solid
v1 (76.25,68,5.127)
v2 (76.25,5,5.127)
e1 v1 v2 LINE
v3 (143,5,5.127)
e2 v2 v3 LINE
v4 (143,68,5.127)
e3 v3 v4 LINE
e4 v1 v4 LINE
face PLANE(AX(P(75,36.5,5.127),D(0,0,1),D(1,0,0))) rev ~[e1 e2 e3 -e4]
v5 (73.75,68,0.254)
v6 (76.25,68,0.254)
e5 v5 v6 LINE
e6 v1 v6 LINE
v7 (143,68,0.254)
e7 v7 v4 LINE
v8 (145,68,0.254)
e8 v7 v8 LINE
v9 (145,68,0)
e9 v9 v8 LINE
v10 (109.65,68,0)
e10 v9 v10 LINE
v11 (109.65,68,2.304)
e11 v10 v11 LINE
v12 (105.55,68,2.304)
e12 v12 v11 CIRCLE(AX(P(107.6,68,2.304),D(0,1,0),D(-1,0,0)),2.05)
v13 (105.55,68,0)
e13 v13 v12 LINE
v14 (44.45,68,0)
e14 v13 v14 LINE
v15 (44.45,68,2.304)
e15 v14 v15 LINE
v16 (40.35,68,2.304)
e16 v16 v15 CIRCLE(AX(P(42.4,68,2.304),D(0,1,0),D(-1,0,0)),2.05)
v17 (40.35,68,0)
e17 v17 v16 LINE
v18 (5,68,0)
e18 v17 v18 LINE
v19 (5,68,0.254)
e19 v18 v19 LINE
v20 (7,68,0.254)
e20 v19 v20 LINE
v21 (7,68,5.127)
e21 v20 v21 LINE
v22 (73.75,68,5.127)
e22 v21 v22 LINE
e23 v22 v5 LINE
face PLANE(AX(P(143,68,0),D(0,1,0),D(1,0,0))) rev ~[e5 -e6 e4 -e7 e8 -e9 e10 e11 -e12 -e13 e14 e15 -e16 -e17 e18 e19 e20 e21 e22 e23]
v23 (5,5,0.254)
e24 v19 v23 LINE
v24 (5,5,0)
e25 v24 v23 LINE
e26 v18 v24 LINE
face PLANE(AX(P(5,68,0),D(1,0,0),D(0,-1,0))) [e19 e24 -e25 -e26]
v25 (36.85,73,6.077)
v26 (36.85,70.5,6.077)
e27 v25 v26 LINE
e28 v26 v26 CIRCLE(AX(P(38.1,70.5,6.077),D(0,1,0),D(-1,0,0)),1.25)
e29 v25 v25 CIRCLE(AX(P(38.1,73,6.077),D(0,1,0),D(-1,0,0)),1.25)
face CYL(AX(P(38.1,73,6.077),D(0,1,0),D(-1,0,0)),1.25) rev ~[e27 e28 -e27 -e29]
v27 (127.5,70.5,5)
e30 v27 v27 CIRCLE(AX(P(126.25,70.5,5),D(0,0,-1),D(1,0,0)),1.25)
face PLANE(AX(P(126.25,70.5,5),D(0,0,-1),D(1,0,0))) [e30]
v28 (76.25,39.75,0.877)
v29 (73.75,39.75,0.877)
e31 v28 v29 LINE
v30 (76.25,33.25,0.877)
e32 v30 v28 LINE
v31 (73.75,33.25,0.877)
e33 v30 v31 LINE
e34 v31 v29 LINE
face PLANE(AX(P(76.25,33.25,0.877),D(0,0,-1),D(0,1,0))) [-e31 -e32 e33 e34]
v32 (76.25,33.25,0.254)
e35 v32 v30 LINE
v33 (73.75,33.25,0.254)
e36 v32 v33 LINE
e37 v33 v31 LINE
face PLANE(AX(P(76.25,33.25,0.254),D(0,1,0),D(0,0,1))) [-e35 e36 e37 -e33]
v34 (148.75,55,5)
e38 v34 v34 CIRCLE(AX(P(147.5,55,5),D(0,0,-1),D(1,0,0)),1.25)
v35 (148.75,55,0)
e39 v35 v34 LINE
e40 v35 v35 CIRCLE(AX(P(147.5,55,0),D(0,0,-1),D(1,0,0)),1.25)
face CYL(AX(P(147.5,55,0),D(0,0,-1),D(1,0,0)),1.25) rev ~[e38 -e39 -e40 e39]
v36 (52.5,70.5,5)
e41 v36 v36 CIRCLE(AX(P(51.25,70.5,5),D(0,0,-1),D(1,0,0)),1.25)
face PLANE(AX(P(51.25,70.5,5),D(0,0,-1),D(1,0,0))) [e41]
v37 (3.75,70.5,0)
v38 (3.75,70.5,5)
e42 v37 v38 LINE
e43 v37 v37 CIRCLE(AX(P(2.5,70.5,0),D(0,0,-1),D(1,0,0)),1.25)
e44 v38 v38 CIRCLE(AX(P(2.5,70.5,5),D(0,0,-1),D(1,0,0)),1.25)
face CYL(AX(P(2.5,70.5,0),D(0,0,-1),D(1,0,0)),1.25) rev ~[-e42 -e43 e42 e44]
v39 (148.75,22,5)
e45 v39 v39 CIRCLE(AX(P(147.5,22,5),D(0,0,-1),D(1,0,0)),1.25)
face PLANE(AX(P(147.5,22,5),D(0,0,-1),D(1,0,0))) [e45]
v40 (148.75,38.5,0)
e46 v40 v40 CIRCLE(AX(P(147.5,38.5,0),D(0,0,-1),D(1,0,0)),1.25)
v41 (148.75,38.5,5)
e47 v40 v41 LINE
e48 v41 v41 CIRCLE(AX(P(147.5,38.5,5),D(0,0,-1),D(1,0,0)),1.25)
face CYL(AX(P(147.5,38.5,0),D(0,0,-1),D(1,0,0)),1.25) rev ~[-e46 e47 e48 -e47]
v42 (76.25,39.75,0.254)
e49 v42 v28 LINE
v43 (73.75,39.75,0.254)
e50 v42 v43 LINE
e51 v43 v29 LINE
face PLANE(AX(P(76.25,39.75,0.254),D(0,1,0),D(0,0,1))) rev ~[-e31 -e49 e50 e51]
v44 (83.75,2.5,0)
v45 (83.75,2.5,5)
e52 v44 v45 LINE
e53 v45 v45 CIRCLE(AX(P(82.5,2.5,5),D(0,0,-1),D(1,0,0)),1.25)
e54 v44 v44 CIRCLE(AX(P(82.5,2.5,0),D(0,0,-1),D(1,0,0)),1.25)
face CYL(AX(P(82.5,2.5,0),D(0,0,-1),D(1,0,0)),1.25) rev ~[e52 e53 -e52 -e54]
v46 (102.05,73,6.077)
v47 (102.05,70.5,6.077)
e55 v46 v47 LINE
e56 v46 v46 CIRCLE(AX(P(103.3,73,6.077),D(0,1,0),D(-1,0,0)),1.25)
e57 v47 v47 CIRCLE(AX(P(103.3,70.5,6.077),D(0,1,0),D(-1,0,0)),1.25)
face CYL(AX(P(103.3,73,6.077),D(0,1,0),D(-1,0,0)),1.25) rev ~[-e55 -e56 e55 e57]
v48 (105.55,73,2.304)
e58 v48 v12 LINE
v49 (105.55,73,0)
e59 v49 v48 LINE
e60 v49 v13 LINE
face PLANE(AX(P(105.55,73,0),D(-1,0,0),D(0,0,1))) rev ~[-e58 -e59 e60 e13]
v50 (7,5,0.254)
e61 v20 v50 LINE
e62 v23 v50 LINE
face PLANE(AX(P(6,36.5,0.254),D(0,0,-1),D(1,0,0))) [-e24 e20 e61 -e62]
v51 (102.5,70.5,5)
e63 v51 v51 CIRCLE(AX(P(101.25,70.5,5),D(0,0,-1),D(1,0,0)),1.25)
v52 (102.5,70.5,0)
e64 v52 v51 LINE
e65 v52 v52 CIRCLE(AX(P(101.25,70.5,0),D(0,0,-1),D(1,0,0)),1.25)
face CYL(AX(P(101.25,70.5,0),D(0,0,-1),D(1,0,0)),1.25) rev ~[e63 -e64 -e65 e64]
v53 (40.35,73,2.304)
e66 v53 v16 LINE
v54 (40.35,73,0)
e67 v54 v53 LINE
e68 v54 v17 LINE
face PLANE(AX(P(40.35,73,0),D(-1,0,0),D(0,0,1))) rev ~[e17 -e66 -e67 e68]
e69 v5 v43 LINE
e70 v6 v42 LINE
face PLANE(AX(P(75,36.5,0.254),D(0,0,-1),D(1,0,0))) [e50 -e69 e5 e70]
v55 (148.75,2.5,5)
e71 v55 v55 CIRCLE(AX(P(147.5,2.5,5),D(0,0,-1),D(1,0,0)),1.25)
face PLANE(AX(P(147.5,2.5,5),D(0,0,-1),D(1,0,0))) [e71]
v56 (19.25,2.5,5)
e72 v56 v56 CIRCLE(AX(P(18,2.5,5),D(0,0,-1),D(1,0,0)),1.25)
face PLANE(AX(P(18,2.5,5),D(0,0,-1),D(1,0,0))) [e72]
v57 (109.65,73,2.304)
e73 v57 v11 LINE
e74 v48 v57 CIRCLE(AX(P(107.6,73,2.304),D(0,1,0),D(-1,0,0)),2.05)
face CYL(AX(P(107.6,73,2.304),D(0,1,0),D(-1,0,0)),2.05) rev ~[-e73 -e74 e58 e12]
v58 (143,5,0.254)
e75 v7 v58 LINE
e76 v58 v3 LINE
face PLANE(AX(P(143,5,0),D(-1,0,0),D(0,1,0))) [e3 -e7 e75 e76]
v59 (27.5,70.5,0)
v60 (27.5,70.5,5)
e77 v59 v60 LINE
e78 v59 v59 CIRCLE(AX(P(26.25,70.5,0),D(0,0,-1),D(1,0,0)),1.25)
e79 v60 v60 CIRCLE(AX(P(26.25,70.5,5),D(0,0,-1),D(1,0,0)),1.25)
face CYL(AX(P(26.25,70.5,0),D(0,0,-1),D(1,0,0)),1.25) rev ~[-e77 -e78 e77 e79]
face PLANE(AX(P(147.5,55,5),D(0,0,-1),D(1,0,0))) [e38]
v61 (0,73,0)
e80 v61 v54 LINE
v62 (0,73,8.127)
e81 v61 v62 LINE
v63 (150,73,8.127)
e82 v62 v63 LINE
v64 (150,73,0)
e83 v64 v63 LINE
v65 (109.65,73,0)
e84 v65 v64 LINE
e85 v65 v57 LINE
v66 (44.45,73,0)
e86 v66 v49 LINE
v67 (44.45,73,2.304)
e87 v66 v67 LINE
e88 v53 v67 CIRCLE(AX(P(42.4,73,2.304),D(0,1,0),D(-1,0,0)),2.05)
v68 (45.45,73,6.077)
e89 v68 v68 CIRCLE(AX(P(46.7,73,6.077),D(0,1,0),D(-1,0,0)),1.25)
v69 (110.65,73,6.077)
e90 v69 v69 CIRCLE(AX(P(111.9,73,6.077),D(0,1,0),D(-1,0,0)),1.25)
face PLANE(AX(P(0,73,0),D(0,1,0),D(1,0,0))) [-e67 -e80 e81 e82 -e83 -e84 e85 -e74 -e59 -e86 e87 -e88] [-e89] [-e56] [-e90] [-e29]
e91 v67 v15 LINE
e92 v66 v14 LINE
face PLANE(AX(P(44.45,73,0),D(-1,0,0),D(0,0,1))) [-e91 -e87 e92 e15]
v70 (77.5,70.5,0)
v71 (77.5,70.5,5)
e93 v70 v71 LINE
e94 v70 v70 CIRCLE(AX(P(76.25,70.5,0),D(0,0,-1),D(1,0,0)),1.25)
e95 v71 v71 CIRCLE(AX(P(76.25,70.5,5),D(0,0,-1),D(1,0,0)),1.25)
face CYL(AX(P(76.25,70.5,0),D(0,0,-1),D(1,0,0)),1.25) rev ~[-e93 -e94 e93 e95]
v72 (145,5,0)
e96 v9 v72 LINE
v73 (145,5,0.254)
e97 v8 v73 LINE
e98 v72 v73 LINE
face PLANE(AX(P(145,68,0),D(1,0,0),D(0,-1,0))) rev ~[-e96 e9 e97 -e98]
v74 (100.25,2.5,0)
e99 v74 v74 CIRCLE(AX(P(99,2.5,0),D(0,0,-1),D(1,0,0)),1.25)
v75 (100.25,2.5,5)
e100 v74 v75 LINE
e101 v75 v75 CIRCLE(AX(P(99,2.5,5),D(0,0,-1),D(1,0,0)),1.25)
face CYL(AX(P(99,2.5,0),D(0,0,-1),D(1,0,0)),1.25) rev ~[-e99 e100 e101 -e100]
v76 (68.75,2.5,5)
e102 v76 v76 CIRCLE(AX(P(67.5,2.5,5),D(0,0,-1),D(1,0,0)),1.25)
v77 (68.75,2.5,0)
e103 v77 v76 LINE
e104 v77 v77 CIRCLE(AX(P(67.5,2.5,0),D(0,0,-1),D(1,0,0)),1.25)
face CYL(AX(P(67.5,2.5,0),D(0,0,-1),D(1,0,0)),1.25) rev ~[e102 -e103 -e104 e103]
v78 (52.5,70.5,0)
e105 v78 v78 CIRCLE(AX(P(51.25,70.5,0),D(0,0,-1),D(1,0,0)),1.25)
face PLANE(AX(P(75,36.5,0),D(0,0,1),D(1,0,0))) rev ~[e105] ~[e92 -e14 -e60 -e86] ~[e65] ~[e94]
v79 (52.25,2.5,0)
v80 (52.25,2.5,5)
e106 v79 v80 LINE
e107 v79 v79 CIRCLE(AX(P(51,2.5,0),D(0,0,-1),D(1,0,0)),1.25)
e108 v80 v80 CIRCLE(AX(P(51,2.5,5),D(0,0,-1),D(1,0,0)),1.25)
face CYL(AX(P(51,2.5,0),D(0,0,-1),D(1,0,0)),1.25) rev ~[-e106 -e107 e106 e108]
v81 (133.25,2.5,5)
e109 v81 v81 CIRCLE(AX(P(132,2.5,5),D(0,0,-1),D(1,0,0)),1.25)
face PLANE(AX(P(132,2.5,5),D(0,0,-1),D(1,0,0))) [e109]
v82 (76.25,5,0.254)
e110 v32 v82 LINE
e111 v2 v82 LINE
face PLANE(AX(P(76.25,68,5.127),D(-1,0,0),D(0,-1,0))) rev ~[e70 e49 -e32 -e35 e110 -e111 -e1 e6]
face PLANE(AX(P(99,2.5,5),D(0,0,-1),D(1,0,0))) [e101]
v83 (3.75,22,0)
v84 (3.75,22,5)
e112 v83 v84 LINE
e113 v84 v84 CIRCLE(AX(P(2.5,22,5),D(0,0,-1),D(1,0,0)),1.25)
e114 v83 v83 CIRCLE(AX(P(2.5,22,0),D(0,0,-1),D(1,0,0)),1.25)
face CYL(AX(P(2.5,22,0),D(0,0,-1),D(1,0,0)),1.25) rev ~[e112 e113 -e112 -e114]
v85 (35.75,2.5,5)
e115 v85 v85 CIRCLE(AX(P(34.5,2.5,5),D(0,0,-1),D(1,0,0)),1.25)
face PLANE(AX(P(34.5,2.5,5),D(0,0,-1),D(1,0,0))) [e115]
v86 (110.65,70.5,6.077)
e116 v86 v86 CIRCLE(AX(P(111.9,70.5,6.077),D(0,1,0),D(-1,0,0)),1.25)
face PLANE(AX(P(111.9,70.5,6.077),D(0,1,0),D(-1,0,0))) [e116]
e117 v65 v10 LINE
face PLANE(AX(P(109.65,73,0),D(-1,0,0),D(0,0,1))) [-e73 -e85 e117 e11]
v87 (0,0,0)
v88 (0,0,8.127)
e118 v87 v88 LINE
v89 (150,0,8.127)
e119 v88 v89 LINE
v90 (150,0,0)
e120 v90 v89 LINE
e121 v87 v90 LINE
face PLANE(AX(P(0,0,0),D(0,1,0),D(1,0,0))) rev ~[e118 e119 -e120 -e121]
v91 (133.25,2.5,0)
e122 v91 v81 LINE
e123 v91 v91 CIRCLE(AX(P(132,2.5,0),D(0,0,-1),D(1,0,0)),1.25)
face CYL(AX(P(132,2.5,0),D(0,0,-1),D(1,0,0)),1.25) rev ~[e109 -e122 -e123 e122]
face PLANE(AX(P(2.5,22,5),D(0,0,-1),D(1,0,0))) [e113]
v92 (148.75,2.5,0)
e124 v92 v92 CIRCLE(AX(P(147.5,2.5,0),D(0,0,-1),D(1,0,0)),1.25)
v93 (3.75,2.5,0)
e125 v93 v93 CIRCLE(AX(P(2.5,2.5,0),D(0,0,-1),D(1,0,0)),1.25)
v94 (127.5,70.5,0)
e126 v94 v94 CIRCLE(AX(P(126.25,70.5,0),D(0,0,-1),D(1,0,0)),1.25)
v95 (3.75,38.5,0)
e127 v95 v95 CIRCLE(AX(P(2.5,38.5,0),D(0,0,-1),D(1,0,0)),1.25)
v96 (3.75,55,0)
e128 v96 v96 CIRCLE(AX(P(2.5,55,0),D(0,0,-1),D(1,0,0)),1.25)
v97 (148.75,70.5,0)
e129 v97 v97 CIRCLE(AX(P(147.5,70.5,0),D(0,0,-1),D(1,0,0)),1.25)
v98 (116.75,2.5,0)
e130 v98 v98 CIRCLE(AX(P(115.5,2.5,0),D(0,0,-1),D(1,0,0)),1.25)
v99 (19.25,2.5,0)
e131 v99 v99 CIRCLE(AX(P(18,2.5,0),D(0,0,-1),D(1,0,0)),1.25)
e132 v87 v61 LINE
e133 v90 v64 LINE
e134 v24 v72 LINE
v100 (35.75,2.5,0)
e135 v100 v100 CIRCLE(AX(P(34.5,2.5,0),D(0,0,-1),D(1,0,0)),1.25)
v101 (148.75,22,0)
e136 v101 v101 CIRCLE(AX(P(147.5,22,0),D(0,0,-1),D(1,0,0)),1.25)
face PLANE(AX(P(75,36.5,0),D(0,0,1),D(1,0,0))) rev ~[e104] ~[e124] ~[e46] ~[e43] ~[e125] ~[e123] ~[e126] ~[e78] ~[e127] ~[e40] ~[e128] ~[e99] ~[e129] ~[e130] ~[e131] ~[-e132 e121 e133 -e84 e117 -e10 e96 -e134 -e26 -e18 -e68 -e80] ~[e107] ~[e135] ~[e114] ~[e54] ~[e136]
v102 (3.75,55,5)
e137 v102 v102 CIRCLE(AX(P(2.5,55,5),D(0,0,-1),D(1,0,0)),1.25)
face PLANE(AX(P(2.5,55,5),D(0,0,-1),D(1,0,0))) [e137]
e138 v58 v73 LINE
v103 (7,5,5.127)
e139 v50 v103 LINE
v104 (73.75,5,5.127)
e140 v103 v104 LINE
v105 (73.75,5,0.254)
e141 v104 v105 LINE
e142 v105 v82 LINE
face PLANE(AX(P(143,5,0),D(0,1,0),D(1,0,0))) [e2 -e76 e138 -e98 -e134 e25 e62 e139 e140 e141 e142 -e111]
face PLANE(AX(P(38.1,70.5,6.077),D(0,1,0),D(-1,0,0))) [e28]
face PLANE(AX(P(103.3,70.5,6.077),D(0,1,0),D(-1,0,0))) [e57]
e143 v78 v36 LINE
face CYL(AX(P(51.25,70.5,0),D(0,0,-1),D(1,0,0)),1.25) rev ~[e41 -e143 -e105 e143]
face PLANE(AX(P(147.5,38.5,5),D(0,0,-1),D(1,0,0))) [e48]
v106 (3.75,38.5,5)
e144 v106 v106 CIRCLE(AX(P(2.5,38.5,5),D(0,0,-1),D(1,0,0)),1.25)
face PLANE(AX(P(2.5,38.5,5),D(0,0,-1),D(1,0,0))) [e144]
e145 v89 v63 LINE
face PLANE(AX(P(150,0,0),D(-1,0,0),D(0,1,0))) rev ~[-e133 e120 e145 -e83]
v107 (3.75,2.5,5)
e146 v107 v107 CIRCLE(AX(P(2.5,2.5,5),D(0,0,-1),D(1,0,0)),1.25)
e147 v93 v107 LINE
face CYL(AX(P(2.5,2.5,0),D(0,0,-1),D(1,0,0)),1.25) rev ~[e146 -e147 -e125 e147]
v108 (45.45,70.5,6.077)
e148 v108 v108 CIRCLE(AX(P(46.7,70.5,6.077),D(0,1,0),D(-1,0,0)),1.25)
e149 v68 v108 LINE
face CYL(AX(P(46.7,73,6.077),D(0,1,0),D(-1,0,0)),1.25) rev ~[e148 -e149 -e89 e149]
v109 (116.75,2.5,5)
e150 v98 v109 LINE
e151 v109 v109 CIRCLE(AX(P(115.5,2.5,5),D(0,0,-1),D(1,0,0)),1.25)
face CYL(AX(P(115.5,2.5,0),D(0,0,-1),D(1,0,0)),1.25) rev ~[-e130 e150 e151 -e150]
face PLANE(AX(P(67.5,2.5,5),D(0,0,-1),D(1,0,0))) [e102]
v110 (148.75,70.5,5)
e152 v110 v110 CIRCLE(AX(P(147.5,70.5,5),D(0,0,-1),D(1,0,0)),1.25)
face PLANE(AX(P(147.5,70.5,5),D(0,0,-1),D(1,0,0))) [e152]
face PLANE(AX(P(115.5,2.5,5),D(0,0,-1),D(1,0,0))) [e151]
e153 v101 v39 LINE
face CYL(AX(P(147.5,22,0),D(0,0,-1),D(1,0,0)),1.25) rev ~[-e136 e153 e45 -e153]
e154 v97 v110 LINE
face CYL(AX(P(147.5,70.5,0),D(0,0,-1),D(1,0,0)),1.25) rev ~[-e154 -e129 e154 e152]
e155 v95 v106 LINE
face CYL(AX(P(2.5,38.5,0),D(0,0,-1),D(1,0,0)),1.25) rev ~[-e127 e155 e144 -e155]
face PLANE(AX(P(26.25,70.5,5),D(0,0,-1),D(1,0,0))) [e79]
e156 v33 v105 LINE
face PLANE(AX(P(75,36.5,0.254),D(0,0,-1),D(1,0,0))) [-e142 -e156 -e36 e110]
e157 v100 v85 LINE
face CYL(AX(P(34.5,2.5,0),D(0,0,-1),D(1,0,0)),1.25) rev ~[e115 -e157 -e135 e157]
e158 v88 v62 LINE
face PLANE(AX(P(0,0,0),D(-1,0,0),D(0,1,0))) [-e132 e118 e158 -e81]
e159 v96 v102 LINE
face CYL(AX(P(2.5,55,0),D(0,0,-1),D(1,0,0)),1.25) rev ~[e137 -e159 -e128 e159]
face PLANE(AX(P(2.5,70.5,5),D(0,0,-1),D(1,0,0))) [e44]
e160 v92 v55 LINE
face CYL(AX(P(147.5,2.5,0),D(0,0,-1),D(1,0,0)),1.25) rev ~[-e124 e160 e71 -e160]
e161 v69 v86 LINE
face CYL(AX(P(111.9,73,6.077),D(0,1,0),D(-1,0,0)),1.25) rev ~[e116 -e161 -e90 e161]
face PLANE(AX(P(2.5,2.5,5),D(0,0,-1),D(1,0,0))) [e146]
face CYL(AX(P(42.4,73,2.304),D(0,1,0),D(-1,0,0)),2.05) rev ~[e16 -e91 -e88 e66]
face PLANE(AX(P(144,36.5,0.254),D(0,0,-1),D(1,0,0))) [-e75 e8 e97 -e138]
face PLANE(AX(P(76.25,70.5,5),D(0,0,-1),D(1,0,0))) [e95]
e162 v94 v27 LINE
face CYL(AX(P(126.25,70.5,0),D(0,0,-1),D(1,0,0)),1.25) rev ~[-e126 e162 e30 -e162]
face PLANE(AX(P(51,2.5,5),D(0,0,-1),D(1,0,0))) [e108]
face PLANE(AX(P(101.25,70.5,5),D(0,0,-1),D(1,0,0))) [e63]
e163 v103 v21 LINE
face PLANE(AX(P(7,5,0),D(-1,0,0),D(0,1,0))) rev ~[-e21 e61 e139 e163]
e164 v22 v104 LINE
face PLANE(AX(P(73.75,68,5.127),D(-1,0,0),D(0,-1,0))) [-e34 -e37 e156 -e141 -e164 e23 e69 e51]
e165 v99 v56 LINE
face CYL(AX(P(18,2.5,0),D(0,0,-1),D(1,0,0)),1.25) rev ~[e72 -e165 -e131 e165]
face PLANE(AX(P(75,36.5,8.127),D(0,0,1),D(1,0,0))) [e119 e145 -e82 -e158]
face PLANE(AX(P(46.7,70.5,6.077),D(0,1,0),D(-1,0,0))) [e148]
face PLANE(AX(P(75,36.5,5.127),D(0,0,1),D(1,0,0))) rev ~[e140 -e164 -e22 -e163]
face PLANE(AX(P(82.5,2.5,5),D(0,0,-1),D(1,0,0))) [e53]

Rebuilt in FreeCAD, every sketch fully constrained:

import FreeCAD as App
import Part
import Sketcher
Q = App.Units.Quantity


def add_polygon(sketch, points):
    """Adds a closed chain of lines whose ends are joined by coincident constraints."""
    first, n = sketch.GeometryCount, len(points)
    for a, b in zip(points, points[1:] + points[:1]):
        sketch.addGeometry(Part.LineSegment(App.Vector(*a, 0), App.Vector(*b, 0)), False)
    for i in range(n):
        sketch.addConstraint(Sketcher.Constraint("Coincident", first + i, 2, first + (i + 1) % n, 1))

doc = App.newDocument("Part")
body = doc.addObject("PartDesign::Body", "Body")

# Sketch on XY plane
sketch1 = body.newObject("Sketcher::SketchObject", "Sketch")
sketch1.AttachmentSupport = (doc.getObject("XY_Plane"), [""])
sketch1.MapMode = "FlatFace"
add_polygon(sketch1, [(0, 73), (0, 0), (150, 0), (150, 73)])  # lines 0-3
sketch1.addConstraint(Sketcher.Constraint("Vertical", 0))
sketch1.addConstraint(Sketcher.Constraint("Horizontal", 1))
sketch1.addConstraint(Sketcher.Constraint("Vertical", 2))
sketch1.addConstraint(Sketcher.Constraint("Horizontal", 3))
sketch1.addConstraint(Sketcher.Constraint("Coincident", 0, 2, -1, 1))
sketch1.addConstraint(Sketcher.Constraint("DistanceX", 1, 1, 1, 2, Q("150 mm")))
sketch1.addConstraint(Sketcher.Constraint("DistanceY", 0, 2, 0, 1, Q("73 mm")))
pad1 = body.newObject("PartDesign::Pad", "Pad")
pad1.Profile = sketch1
pad1.Length = 8.127

# Sketch on XY plane
sketch2 = body.newObject("Sketcher::SketchObject", "Sketch001")
sketch2.AttachmentSupport = (doc.getObject("XY_Plane"), [""])
sketch2.MapMode = "FlatFace"
sketch2.addGeometry(Part.Circle(App.Vector(2.5, 2.5, 0), App.Vector(0, 0, 1), 1.25), False)
sketch2.addConstraint(Sketcher.Constraint("Diameter", 0, Q("2.5 mm")))
sketch2.addConstraint(Sketcher.Constraint("DistanceX", -1, 1, 0, 3, Q("2.5 mm")))
sketch2.addConstraint(Sketcher.Constraint("DistanceY", -1, 1, 0, 3, Q("2.5 mm")))
pocket1 = body.newObject("PartDesign::Pocket", "Pocket")
pocket1.Profile = sketch2
pocket1.Length = 5
pocket1.Reversed = True

# Sketch on XY plane
sketch3 = body.newObject("Sketcher::SketchObject", "Sketch002")
sketch3.AttachmentSupport = (doc.getObject("XY_Plane"), [""])
sketch3.MapMode = "FlatFace"
sketch3.addGeometry(Part.Circle(App.Vector(2.5, 22, 0), App.Vector(0, 0, 1), 1.25), False)
sketch3.addConstraint(Sketcher.Constraint("Diameter", 0, Q("2.5 mm")))
sketch3.addConstraint(Sketcher.Constraint("DistanceY", -1, 1, 0, 3, Q("22 mm")))
sketch3.addConstraint(Sketcher.Constraint("DistanceX", -1, 1, 0, 3, Q("2.5 mm")))
pocket2 = body.newObject("PartDesign::Pocket", "Pocket001")
pocket2.Profile = sketch3
pocket2.Length = 5
pocket2.Reversed = True

# Sketch on XY plane
sketch4 = body.newObject("Sketcher::SketchObject", "Sketch003")
sketch4.AttachmentSupport = (doc.getObject("XY_Plane"), [""])
sketch4.MapMode = "FlatFace"
sketch4.addGeometry(Part.Circle(App.Vector(147.5, 2.5, 0), App.Vector(0, 0, 1), 1.25), False)
sketch4.addConstraint(Sketcher.Constraint("Diameter", 0, Q("2.5 mm")))
sketch4.addConstraint(Sketcher.Constraint("DistanceX", -1, 1, 0, 3, Q("147.5 mm")))
sketch4.addConstraint(Sketcher.Constraint("DistanceY", -1, 1, 0, 3, Q("2.5 mm")))
pocket3 = body.newObject("PartDesign::Pocket", "Pocket002")
pocket3.Profile = sketch4
pocket3.Length = 5
pocket3.Reversed = True

# Sketch on XY plane
sketch5 = body.newObject("Sketcher::SketchObject", "Sketch004")
sketch5.AttachmentSupport = (doc.getObject("XY_Plane"), [""])
sketch5.MapMode = "FlatFace"
sketch5.addGeometry(Part.Circle(App.Vector(147.5, 22, 0), App.Vector(0, 0, 1), 1.25), False)
sketch5.addConstraint(Sketcher.Constraint("Diameter", 0, Q("2.5 mm")))
sketch5.addConstraint(Sketcher.Constraint("DistanceY", -1, 1, 0, 3, Q("22 mm")))
sketch5.addConstraint(Sketcher.Constraint("DistanceX", -1, 1, 0, 3, Q("147.5 mm")))
pocket4 = body.newObject("PartDesign::Pocket", "Pocket003")
pocket4.Profile = sketch5
pocket4.Length = 5
pocket4.Reversed = True

# Sketch on XY plane
sketch6 = body.newObject("Sketcher::SketchObject", "Sketch005")
sketch6.AttachmentSupport = (doc.getObject("XY_Plane"), [""])
sketch6.MapMode = "FlatFace"
sketch6.addGeometry(Part.Circle(App.Vector(2.5, 38.5, 0), App.Vector(0, 0, 1), 1.25), False)
sketch6.addConstraint(Sketcher.Constraint("Diameter", 0, Q("2.5 mm")))
sketch6.addConstraint(Sketcher.Constraint("DistanceX", -1, 1, 0, 3, Q("2.5 mm")))
sketch6.addConstraint(Sketcher.Constraint("DistanceY", -1, 1, 0, 3, Q("38.5 mm")))
pocket5 = body.newObject("PartDesign::Pocket", "Pocket004")
pocket5.Profile = sketch6
pocket5.Length = 5
pocket5.Reversed = True

# Sketch on XY plane
sketch7 = body.newObject("Sketcher::SketchObject", "Sketch006")
sketch7.AttachmentSupport = (doc.getObject("XY_Plane"), [""])
sketch7.MapMode = "FlatFace"
sketch7.addGeometry(Part.Circle(App.Vector(147.5, 38.5, 0), App.Vector(0, 0, 1), 1.25), False)
sketch7.addConstraint(Sketcher.Constraint("Diameter", 0, Q("2.5 mm")))
sketch7.addConstraint(Sketcher.Constraint("DistanceX", -1, 1, 0, 3, Q("147.5 mm")))
sketch7.addConstraint(Sketcher.Constraint("DistanceY", -1, 1, 0, 3, Q("38.5 mm")))
pocket6 = body.newObject("PartDesign::Pocket", "Pocket005")
pocket6.Profile = sketch7
pocket6.Length = 5
pocket6.Reversed = True

# Sketch on XY plane
sketch8 = body.newObject("Sketcher::SketchObject", "Sketch007")
sketch8.AttachmentSupport = (doc.getObject("XY_Plane"), [""])
sketch8.MapMode = "FlatFace"
sketch8.addGeometry(Part.Circle(App.Vector(2.5, 55, 0), App.Vector(0, 0, 1), 1.25), False)
sketch8.addConstraint(Sketcher.Constraint("Diameter", 0, Q("2.5 mm")))
sketch8.addConstraint(Sketcher.Constraint("DistanceY", -1, 1, 0, 3, Q("55 mm")))
sketch8.addConstraint(Sketcher.Constraint("DistanceX", -1, 1, 0, 3, Q("2.5 mm")))
pocket7 = body.newObject("PartDesign::Pocket", "Pocket006")
pocket7.Profile = sketch8
pocket7.Length = 5
pocket7.Reversed = True

# Sketch on XY plane
sketch9 = body.newObject("Sketcher::SketchObject", "Sketch008")
sketch9.AttachmentSupport = (doc.getObject("XY_Plane"), [""])
sketch9.MapMode = "FlatFace"
sketch9.addGeometry(Part.Circle(App.Vector(147.5, 55, 0), App.Vector(0, 0, 1), 1.25), False)
sketch9.addConstraint(Sketcher.Constraint("Diameter", 0, Q("2.5 mm")))
sketch9.addConstraint(Sketcher.Constraint("DistanceY", -1, 1, 0, 3, Q("55 mm")))
sketch9.addConstraint(Sketcher.Constraint("DistanceX", -1, 1, 0, 3, Q("147.5 mm")))
pocket8 = body.newObject("PartDesign::Pocket", "Pocket007")
pocket8.Profile = sketch9
pocket8.Length = 5
pocket8.Reversed = True

# Sketch on XY plane
sketch10 = body.newObject("Sketcher::SketchObject", "Sketch009")
sketch10.AttachmentSupport = (doc.getObject("XY_Plane"), [""])
sketch10.MapMode = "FlatFace"
sketch10.addGeometry(Part.Circle(App.Vector(2.5, 70.5, 0), App.Vector(0, 0, 1), 1.25), False)
sketch10.addConstraint(Sketcher.Constraint("Diameter", 0, Q("2.5 mm")))
sketch10.addConstraint(Sketcher.Constraint("DistanceX", -1, 1, 0, 3, Q("2.5 mm")))
sketch10.addConstraint(Sketcher.Constraint("DistanceY", -1, 1, 0, 3, Q("70.5 mm")))
pocket9 = body.newObject("PartDesign::Pocket", "Pocket008")
pocket9.Profile = sketch10
pocket9.Length = 5
pocket9.Reversed = True

# Sketch on XY plane
sketch11 = body.newObject("Sketcher::SketchObject", "Sketch010")
sketch11.AttachmentSupport = (doc.getObject("XY_Plane"), [""])
sketch11.MapMode = "FlatFace"
sketch11.addGeometry(Part.Circle(App.Vector(147.5, 70.5, 0), App.Vector(0, 0, 1), 1.25), False)
sketch11.addConstraint(Sketcher.Constraint("Diameter", 0, Q("2.5 mm")))
sketch11.addConstraint(Sketcher.Constraint("DistanceX", -1, 1, 0, 3, Q("147.5 mm")))
sketch11.addConstraint(Sketcher.Constraint("DistanceY", -1, 1, 0, 3, Q("70.5 mm")))
pocket10 = body.newObject("PartDesign::Pocket", "Pocket009")
pocket10.Profile = sketch11
pocket10.Length = 5
pocket10.Reversed = True

# Sketch on XY plane
sketch12 = body.newObject("Sketcher::SketchObject", "Sketch011")
sketch12.AttachmentSupport = (doc.getObject("XY_Plane"), [""])
sketch12.MapMode = "FlatFace"
sketch12.addGeometry(Part.Circle(App.Vector(18, 2.5, 0), App.Vector(0, 0, 1), 1.25), False)
sketch12.addConstraint(Sketcher.Constraint("Diameter", 0, Q("2.5 mm")))
sketch12.addConstraint(Sketcher.Constraint("DistanceX", -1, 1, 0, 3, Q("18 mm")))
sketch12.addConstraint(Sketcher.Constraint("DistanceY", -1, 1, 0, 3, Q("2.5 mm")))
pocket11 = body.newObject("PartDesign::Pocket", "Pocket010")
pocket11.Profile = sketch12
pocket11.Length = 5
pocket11.Reversed = True

# Sketch on XY plane
sketch13 = body.newObject("Sketcher::SketchObject", "Sketch012")
sketch13.AttachmentSupport = (doc.getObject("XY_Plane"), [""])
sketch13.MapMode = "FlatFace"
sketch13.addGeometry(Part.Circle(App.Vector(26.25, 70.5, 0), App.Vector(0, 0, 1), 1.25), False)
sketch13.addConstraint(Sketcher.Constraint("Diameter", 0, Q("2.5 mm")))
sketch13.addConstraint(Sketcher.Constraint("DistanceY", -1, 1, 0, 3, Q("70.5 mm")))
sketch13.addConstraint(Sketcher.Constraint("DistanceX", -1, 1, 0, 3, Q("26.25 mm")))
pocket12 = body.newObject("PartDesign::Pocket", "Pocket011")
pocket12.Profile = sketch13
pocket12.Length = 5
pocket12.Reversed = True

# Sketch on XY plane
sketch14 = body.newObject("Sketcher::SketchObject", "Sketch013")
sketch14.AttachmentSupport = (doc.getObject("XY_Plane"), [""])
sketch14.MapMode = "FlatFace"
sketch14.addGeometry(Part.Circle(App.Vector(34.5, 2.5, 0), App.Vector(0, 0, 1), 1.25), False)
sketch14.addConstraint(Sketcher.Constraint("Diameter", 0, Q("2.5 mm")))
sketch14.addConstraint(Sketcher.Constraint("DistanceX", -1, 1, 0, 3, Q("34.5 mm")))
sketch14.addConstraint(Sketcher.Constraint("DistanceY", -1, 1, 0, 3, Q("2.5 mm")))
pocket13 = body.newObject("PartDesign::Pocket", "Pocket012")
pocket13.Profile = sketch14
pocket13.Length = 5
pocket13.Reversed = True

# Sketch on XY plane
sketch15 = body.newObject("Sketcher::SketchObject", "Sketch014")
sketch15.AttachmentSupport = (doc.getObject("XY_Plane"), [""])
sketch15.MapMode = "FlatFace"
sketch15.addGeometry(Part.Circle(App.Vector(51, 2.5, 0), App.Vector(0, 0, 1), 1.25), False)
sketch15.addConstraint(Sketcher.Constraint("Diameter", 0, Q("2.5 mm")))
sketch15.addConstraint(Sketcher.Constraint("DistanceX", -1, 1, 0, 3, Q("51 mm")))
sketch15.addConstraint(Sketcher.Constraint("DistanceY", -1, 1, 0, 3, Q("2.5 mm")))
pocket14 = body.newObject("PartDesign::Pocket", "Pocket013")
pocket14.Profile = sketch15
pocket14.Length = 5
pocket14.Reversed = True

# Sketch on XY plane
sketch16 = body.newObject("Sketcher::SketchObject", "Sketch015")
sketch16.AttachmentSupport = (doc.getObject("XY_Plane"), [""])
sketch16.MapMode = "FlatFace"
sketch16.addGeometry(Part.Circle(App.Vector(51.25, 70.5, 0), App.Vector(0, 0, 1), 1.25), False)
sketch16.addConstraint(Sketcher.Constraint("Diameter", 0, Q("2.5 mm")))
sketch16.addConstraint(Sketcher.Constraint("DistanceY", -1, 1, 0, 3, Q("70.5 mm")))
sketch16.addConstraint(Sketcher.Constraint("DistanceX", -1, 1, 0, 3, Q("51.25 mm")))
pocket15 = body.newObject("PartDesign::Pocket", "Pocket014")
pocket15.Profile = sketch16
pocket15.Length = 5
pocket15.Reversed = True

# Sketch on XY plane
sketch17 = body.newObject("Sketcher::SketchObject", "Sketch016")
sketch17.AttachmentSupport = (doc.getObject("XY_Plane"), [""])
sketch17.MapMode = "FlatFace"
sketch17.addGeometry(Part.Circle(App.Vector(67.5, 2.5, 0), App.Vector(0, 0, 1), 1.25), False)
sketch17.addConstraint(Sketcher.Constraint("Diameter", 0, Q("2.5 mm")))
sketch17.addConstraint(Sketcher.Constraint("DistanceX", -1, 1, 0, 3, Q("67.5 mm")))
sketch17.addConstraint(Sketcher.Constraint("DistanceY", -1, 1, 0, 3, Q("2.5 mm")))
pocket16 = body.newObject("PartDesign::Pocket", "Pocket015")
pocket16.Profile = sketch17
pocket16.Length = 5
pocket16.Reversed = True

# Sketch on XY plane
sketch18 = body.newObject("Sketcher::SketchObject", "Sketch017")
sketch18.AttachmentSupport = (doc.getObject("XY_Plane"), [""])
sketch18.MapMode = "FlatFace"
sketch18.addGeometry(Part.Circle(App.Vector(76.25, 70.5, 0), App.Vector(0, 0, 1), 1.25), False)
sketch18.addConstraint(Sketcher.Constraint("Diameter", 0, Q("2.5 mm")))
sketch18.addConstraint(Sketcher.Constraint("DistanceY", -1, 1, 0, 3, Q("70.5 mm")))
sketch18.addConstraint(Sketcher.Constraint("DistanceX", -1, 1, 0, 3, Q("76.25 mm")))
pocket17 = body.newObject("PartDesign::Pocket", "Pocket016")
pocket17.Profile = sketch18
pocket17.Length = 5
pocket17.Reversed = True

# Sketch on XY plane
sketch19 = body.newObject("Sketcher::SketchObject", "Sketch018")
sketch19.AttachmentSupport = (doc.getObject("XY_Plane"), [""])
sketch19.MapMode = "FlatFace"
sketch19.addGeometry(Part.Circle(App.Vector(82.5, 2.5, 0), App.Vector(0, 0, 1), 1.25), False)
sketch19.addConstraint(Sketcher.Constraint("Diameter", 0, Q("2.5 mm")))
sketch19.addConstraint(Sketcher.Constraint("DistanceX", -1, 1, 0, 3, Q("82.5 mm")))
sketch19.addConstraint(Sketcher.Constraint("DistanceY", -1, 1, 0, 3, Q("2.5 mm")))
pocket18 = body.newObject("PartDesign::Pocket", "Pocket017")
pocket18.Profile = sketch19
pocket18.Length = 5
pocket18.Reversed = True

# Sketch on XY plane
sketch20 = body.newObject("Sketcher::SketchObject", "Sketch019")
sketch20.AttachmentSupport = (doc.getObject("XY_Plane"), [""])
sketch20.MapMode = "FlatFace"
sketch20.addGeometry(Part.Circle(App.Vector(99, 2.5, 0), App.Vector(0, 0, 1), 1.25), False)
sketch20.addConstraint(Sketcher.Constraint("Diameter", 0, Q("2.5 mm")))
sketch20.addConstraint(Sketcher.Constraint("DistanceX", -1, 1, 0, 3, Q("99 mm")))
sketch20.addConstraint(Sketcher.Constraint("DistanceY", -1, 1, 0, 3, Q("2.5 mm")))
pocket19 = body.newObject("PartDesign::Pocket", "Pocket018")
pocket19.Profile = sketch20
pocket19.Length = 5
pocket19.Reversed = True

# Sketch on XY plane
sketch21 = body.newObject("Sketcher::SketchObject", "Sketch020")
sketch21.AttachmentSupport = (doc.getObject("XY_Plane"), [""])
sketch21.MapMode = "FlatFace"
sketch21.addGeometry(Part.Circle(App.Vector(101.25, 70.5, 0), App.Vector(0, 0, 1), 1.25), False)
sketch21.addConstraint(Sketcher.Constraint("Diameter", 0, Q("2.5 mm")))
sketch21.addConstraint(Sketcher.Constraint("DistanceY", -1, 1, 0, 3, Q("70.5 mm")))
sketch21.addConstraint(Sketcher.Constraint("DistanceX", -1, 1, 0, 3, Q("101.25 mm")))
pocket20 = body.newObject("PartDesign::Pocket", "Pocket019")
pocket20.Profile = sketch21
pocket20.Length = 5
pocket20.Reversed = True

# Sketch on XY plane
sketch22 = body.newObject("Sketcher::SketchObject", "Sketch021")
sketch22.AttachmentSupport = (doc.getObject("XY_Plane"), [""])
sketch22.MapMode = "FlatFace"
sketch22.addGeometry(Part.Circle(App.Vector(115.5, 2.5, 0), App.Vector(0, 0, 1), 1.25), False)
sketch22.addConstraint(Sketcher.Constraint("Diameter", 0, Q("2.5 mm")))
sketch22.addConstraint(Sketcher.Constraint("DistanceX", -1, 1, 0, 3, Q("115.5 mm")))
sketch22.addConstraint(Sketcher.Constraint("DistanceY", -1, 1, 0, 3, Q("2.5 mm")))
pocket21 = body.newObject("PartDesign::Pocket", "Pocket020")
pocket21.Profile = sketch22
pocket21.Length = 5
pocket21.Reversed = True

# Sketch on XY plane
sketch23 = body.newObject("Sketcher::SketchObject", "Sketch022")
sketch23.AttachmentSupport = (doc.getObject("XY_Plane"), [""])
sketch23.MapMode = "FlatFace"
sketch23.addGeometry(Part.Circle(App.Vector(126.25, 70.5, 0), App.Vector(0, 0, 1), 1.25), False)
sketch23.addConstraint(Sketcher.Constraint("Diameter", 0, Q("2.5 mm")))
sketch23.addConstraint(Sketcher.Constraint("DistanceY", -1, 1, 0, 3, Q("70.5 mm")))
sketch23.addConstraint(Sketcher.Constraint("DistanceX", -1, 1, 0, 3, Q("126.25 mm")))
pocket22 = body.newObject("PartDesign::Pocket", "Pocket021")
pocket22.Profile = sketch23
pocket22.Length = 5
pocket22.Reversed = True

# Sketch on XY plane
sketch24 = body.newObject("Sketcher::SketchObject", "Sketch023")
sketch24.AttachmentSupport = (doc.getObject("XY_Plane"), [""])
sketch24.MapMode = "FlatFace"
sketch24.addGeometry(Part.Circle(App.Vector(132, 2.5, 0), App.Vector(0, 0, 1), 1.25), False)
sketch24.addConstraint(Sketcher.Constraint("Diameter", 0, Q("2.5 mm")))
sketch24.addConstraint(Sketcher.Constraint("DistanceX", -1, 1, 0, 3, Q("132 mm")))
sketch24.addConstraint(Sketcher.Constraint("DistanceY", -1, 1, 0, 3, Q("2.5 mm")))
pocket23 = body.newObject("PartDesign::Pocket", "Pocket022")
pocket23.Profile = sketch24
pocket23.Length = 5
pocket23.Reversed = True

# Sketch on XY plane
sketch25 = body.newObject("Sketcher::SketchObject", "Sketch024")
sketch25.AttachmentSupport = (doc.getObject("XY_Plane"), [""])
sketch25.MapMode = "FlatFace"
add_polygon(sketch25, [(7, 68), (7, 5), (143, 5), (143, 68)])  # lines 0-3
sketch25.addConstraint(Sketcher.Constraint("Vertical", 0))
sketch25.addConstraint(Sketcher.Constraint("Horizontal", 1))
sketch25.addConstraint(Sketcher.Constraint("Vertical", 2))
sketch25.addConstraint(Sketcher.Constraint("Horizontal", 3))
sketch25.addConstraint(Sketcher.Constraint("DistanceX", 1, 1, 1, 2, Q("136 mm")))
sketch25.addConstraint(Sketcher.Constraint("DistanceY", 0, 2, 0, 1, Q("63 mm")))
sketch25.addConstraint(Sketcher.Constraint("DistanceX", -1, 1, 0, 2, Q("7 mm")))
sketch25.addConstraint(Sketcher.Constraint("DistanceY", -1, 1, 0, 2, Q("5 mm")))
pocket24 = body.newObject("PartDesign::Pocket", "Pocket023")
pocket24.Profile = sketch25
pocket24.Length = 5.127
pocket24.Reversed = True

# Sketch on XY plane
sketch26 = body.newObject("Sketcher::SketchObject", "Sketch025")
sketch26.AttachmentSupport = (doc.getObject("XY_Plane"), [""])
sketch26.MapMode = "FlatFace"
sketch26.AttachmentOffset = App.Placement(App.Vector(0, 0, 5.127), App.Rotation())
add_polygon(sketch26, [(73.75, 5), (73.75, 68), (76.25, 68), (76.25, 5)])  # lines 0-3
sketch26.addConstraint(Sketcher.Constraint("Vertical", 0))
sketch26.addConstraint(Sketcher.Constraint("Horizontal", 1))
sketch26.addConstraint(Sketcher.Constraint("Vertical", 2))
sketch26.addConstraint(Sketcher.Constraint("Horizontal", 3))
sketch26.addConstraint(Sketcher.Constraint("DistanceY", 0, 1, 0, 2, Q("63 mm")))
sketch26.addConstraint(Sketcher.Constraint("DistanceX", 1, 1, 1, 2, Q("2.5 mm")))
sketch26.addConstraint(Sketcher.Constraint("DistanceY", -1, 1, 0, 2, Q("68 mm")))
sketch26.addConstraint(Sketcher.Constraint("DistanceX", -1, 1, 0, 2, Q("73.75 mm")))
pad2 = body.newObject("PartDesign::Pad", "Pad001")
pad2.Profile = sketch26
pad2.Length = 4.873
pad2.Reversed = True

# Sketch on YZ plane
sketch27 = body.newObject("Sketcher::SketchObject", "Sketch026")
sketch27.AttachmentSupport = (doc.getObject("YZ_Plane"), [""])
sketch27.MapMode = "FlatFace"
sketch27.AttachmentOffset = App.Placement(App.Vector(0, 0, 76.25), App.Rotation())
add_polygon(sketch27, [(33.25, 0.877), (33.25, 0.254), (39.75, 0.254), (39.75, 0.877)])  # lines 0-3
sketch27.addConstraint(Sketcher.Constraint("Vertical", 0))
sketch27.addConstraint(Sketcher.Constraint("Horizontal", 1))
sketch27.addConstraint(Sketcher.Constraint("Vertical", 2))
sketch27.addConstraint(Sketcher.Constraint("Horizontal", 3))
sketch27.addConstraint(Sketcher.Constraint("DistanceX", 1, 1, 1, 2, Q("6.5 mm")))
sketch27.addConstraint(Sketcher.Constraint("DistanceY", 0, 2, 0, 1, Q("0.623 mm")))
sketch27.addConstraint(Sketcher.Constraint("DistanceX", -1, 1, 0, 2, Q("33.25 mm")))
sketch27.addConstraint(Sketcher.Constraint("DistanceY", -1, 1, 0, 2, Q("0.254 mm")))
pocket25 = body.newObject("PartDesign::Pocket", "Pocket024")
pocket25.Profile = sketch27
pocket25.Length = 2.5

# Sketch on XY plane
sketch28 = body.newObject("Sketcher::SketchObject", "Sketch027")
sketch28.AttachmentSupport = (doc.getObject("XY_Plane"), [""])
sketch28.MapMode = "FlatFace"
add_polygon(sketch28, [(5, 5), (5, 68), (7, 68), (7, 5)])  # lines 0-3
sketch28.addConstraint(Sketcher.Constraint("Vertical", 0))
sketch28.addConstraint(Sketcher.Constraint("Horizontal", 1))
sketch28.addConstraint(Sketcher.Constraint("Vertical", 2))
sketch28.addConstraint(Sketcher.Constraint("Horizontal", 3))
sketch28.addConstraint(Sketcher.Constraint("DistanceX", 1, 1, 1, 2, Q("2 mm")))
sketch28.addConstraint(Sketcher.Constraint("DistanceY", 0, 1, 0, 2, Q("63 mm")))
sketch28.addConstraint(Sketcher.Constraint("DistanceX", -1, 1, 0, 2, Q("5 mm")))
sketch28.addConstraint(Sketcher.Constraint("DistanceY", -1, 1, 0, 2, Q("68 mm")))
pocket26 = body.newObject("PartDesign::Pocket", "Pocket025")
pocket26.Profile = sketch28
pocket26.Length = 0.254
pocket26.Reversed = True

# Sketch on XY plane
sketch29 = body.newObject("Sketcher::SketchObject", "Sketch028")
sketch29.AttachmentSupport = (doc.getObject("XY_Plane"), [""])
sketch29.MapMode = "FlatFace"
add_polygon(sketch29, [(143, 5), (143, 68), (145, 68), (145, 5)])  # lines 0-3
sketch29.addConstraint(Sketcher.Constraint("Vertical", 0))
sketch29.addConstraint(Sketcher.Constraint("Horizontal", 1))
sketch29.addConstraint(Sketcher.Constraint("Vertical", 2))
sketch29.addConstraint(Sketcher.Constraint("Horizontal", 3))
sketch29.addConstraint(Sketcher.Constraint("DistanceX", 1, 1, 1, 2, Q("2 mm")))
sketch29.addConstraint(Sketcher.Constraint("DistanceY", 0, 1, 0, 2, Q("63 mm")))
sketch29.addConstraint(Sketcher.Constraint("DistanceX", -1, 1, 0, 2, Q("143 mm")))
sketch29.addConstraint(Sketcher.Constraint("DistanceY", -1, 1, 0, 2, Q("68 mm")))
pocket27 = body.newObject("PartDesign::Pocket", "Pocket026")
pocket27.Profile = sketch29
pocket27.Length = 0.254
pocket27.Reversed = True

# Sketch on XZ plane
sketch30 = body.newObject("Sketcher::SketchObject", "Sketch029")
sketch30.AttachmentSupport = (doc.getObject("XZ_Plane"), [""])
sketch30.MapMode = "FlatFace"
sketch30.AttachmentOffset = App.Placement(App.Vector(0, 0, -73), App.Rotation())
sketch30.addGeometry(Part.Circle(App.Vector(42.4, 2.304, 0), App.Vector(0, 0, 1), 2.05), False)
sketch30.addConstraint(Sketcher.Constraint("Diameter", 0, Q("4.1 mm")))
sketch30.addConstraint(Sketcher.Constraint("DistanceX", -1, 1, 0, 3, Q("42.4 mm")))
sketch30.addConstraint(Sketcher.Constraint("DistanceY", -1, 1, 0, 3, Q("2.304 mm")))
pocket28 = body.newObject("PartDesign::Pocket", "Pocket027")
pocket28.Profile = sketch30
pocket28.Length = 5
pocket28.Reversed = True

# Sketch on XZ plane
sketch31 = body.newObject("Sketcher::SketchObject", "Sketch030")
sketch31.AttachmentSupport = (doc.getObject("XZ_Plane"), [""])
sketch31.MapMode = "FlatFace"
sketch31.AttachmentOffset = App.Placement(App.Vector(0, 0, -73), App.Rotation())
sketch31.addGeometry(Part.Circle(App.Vector(107.6, 2.304, 0), App.Vector(0, 0, 1), 2.05), False)
sketch31.addConstraint(Sketcher.Constraint("Diameter", 0, Q("4.1 mm")))
sketch31.addConstraint(Sketcher.Constraint("DistanceX", -1, 1, 0, 3, Q("107.6 mm")))
sketch31.addConstraint(Sketcher.Constraint("DistanceY", -1, 1, 0, 3, Q("2.304 mm")))
pocket29 = body.newObject("PartDesign::Pocket", "Pocket028")
pocket29.Profile = sketch31
pocket29.Length = 5
pocket29.Reversed = True

# Sketch on XZ plane
sketch32 = body.newObject("Sketcher::SketchObject", "Sketch031")
sketch32.AttachmentSupport = (doc.getObject("XZ_Plane"), [""])
sketch32.MapMode = "FlatFace"
sketch32.AttachmentOffset = App.Placement(App.Vector(0, 0, -73), App.Rotation())
add_polygon(sketch32, [(109.65, 2.304), (109.65, 0), (105.55, 0), (105.55, 2.304)])  # lines 0-3
sketch32.addConstraint(Sketcher.Constraint("Vertical", 0))
sketch32.addConstraint(Sketcher.Constraint("Horizontal", 1))
sketch32.addConstraint(Sketcher.Constraint("Vertical", 2))
sketch32.addConstraint(Sketcher.Constraint("Horizontal", 3))
sketch32.addConstraint(Sketcher.Constraint("PointOnObject", 0, 2, -1))
sketch32.addConstraint(Sketcher.Constraint("DistanceX", 1, 2, 1, 1, Q("4.1 mm")))
sketch32.addConstraint(Sketcher.Constraint("DistanceY", 0, 2, 0, 1, Q("2.304 mm")))
sketch32.addConstraint(Sketcher.Constraint("DistanceX", -1, 1, 0, 2, Q("109.65 mm")))
pocket30 = body.newObject("PartDesign::Pocket", "Pocket029")
pocket30.Profile = sketch32
pocket30.Length = 5
pocket30.Reversed = True

# Sketch on XZ plane
sketch33 = body.newObject("Sketcher::SketchObject", "Sketch032")
sketch33.AttachmentSupport = (doc.getObject("XZ_Plane"), [""])
sketch33.MapMode = "FlatFace"
sketch33.AttachmentOffset = App.Placement(App.Vector(0, 0, -73), App.Rotation())
add_polygon(sketch33, [(44.45, 2.304), (44.45, 0), (40.35, 0), (40.35, 2.304)])  # lines 0-3
sketch33.addConstraint(Sketcher.Constraint("Vertical", 0))
sketch33.addConstraint(Sketcher.Constraint("Horizontal", 1))
sketch33.addConstraint(Sketcher.Constraint("Vertical", 2))
sketch33.addConstraint(Sketcher.Constraint("Horizontal", 3))
sketch33.addConstraint(Sketcher.Constraint("PointOnObject", 0, 2, -1))
sketch33.addConstraint(Sketcher.Constraint("DistanceX", 1, 2, 1, 1, Q("4.1 mm")))
sketch33.addConstraint(Sketcher.Constraint("DistanceY", 0, 2, 0, 1, Q("2.304 mm")))
sketch33.addConstraint(Sketcher.Constraint("DistanceX", -1, 1, 0, 2, Q("44.45 mm")))
pocket31 = body.newObject("PartDesign::Pocket", "Pocket030")
pocket31.Profile = sketch33
pocket31.Length = 5
pocket31.Reversed = True

# Sketch on XZ plane
sketch34 = body.newObject("Sketcher::SketchObject", "Sketch033")
sketch34.AttachmentSupport = (doc.getObject("XZ_Plane"), [""])
sketch34.MapMode = "FlatFace"
sketch34.AttachmentOffset = App.Placement(App.Vector(0, 0, -73), App.Rotation())
sketch34.addGeometry(Part.Circle(App.Vector(38.1, 6.077, 0), App.Vector(0, 0, 1), 1.25), False)
sketch34.addGeometry(Part.Circle(App.Vector(46.7, 6.077, 0), App.Vector(0, 0, 1), 1.25), False)
sketch34.addGeometry(Part.Circle(App.Vector(111.9, 6.077, 0), App.Vector(0, 0, 1), 1.25), False)
sketch34.addGeometry(Part.Circle(App.Vector(103.3, 6.077, 0), App.Vector(0, 0, 1), 1.25), False)
sketch34.addConstraint(Sketcher.Constraint("Equal", 0, 1))
sketch34.addConstraint(Sketcher.Constraint("Equal", 1, 2))
sketch34.addConstraint(Sketcher.Constraint("Equal", 2, 3))
sketch34.addConstraint(Sketcher.Constraint("Horizontal", 0, 3, 1, 3))
sketch34.addConstraint(Sketcher.Constraint("Horizontal", 1, 3, 2, 3))
sketch34.addConstraint(Sketcher.Constraint("Horizontal", 2, 3, 3, 3))
sketch34.addConstraint(Sketcher.Constraint("Diameter", 0, Q("2.5 mm")))
sketch34.addConstraint(Sketcher.Constraint("DistanceX", -1, 1, 0, 3, Q("38.1 mm")))
sketch34.addConstraint(Sketcher.Constraint("DistanceX", -1, 1, 1, 3, Q("46.7 mm")))
sketch34.addConstraint(Sketcher.Constraint("DistanceX", -1, 1, 2, 3, Q("111.9 mm")))
sketch34.addConstraint(Sketcher.Constraint("DistanceX", -1, 1, 3, 3, Q("103.3 mm")))
sketch34.addConstraint(Sketcher.Constraint("DistanceY", -1, 1, 0, 3, Q("6.077 mm")))
pocket32 = body.newObject("PartDesign::Pocket", "Pocket031")
pocket32.Profile = sketch34
pocket32.Length = 2.5
pocket32.Reversed = True

doc.recompute()
